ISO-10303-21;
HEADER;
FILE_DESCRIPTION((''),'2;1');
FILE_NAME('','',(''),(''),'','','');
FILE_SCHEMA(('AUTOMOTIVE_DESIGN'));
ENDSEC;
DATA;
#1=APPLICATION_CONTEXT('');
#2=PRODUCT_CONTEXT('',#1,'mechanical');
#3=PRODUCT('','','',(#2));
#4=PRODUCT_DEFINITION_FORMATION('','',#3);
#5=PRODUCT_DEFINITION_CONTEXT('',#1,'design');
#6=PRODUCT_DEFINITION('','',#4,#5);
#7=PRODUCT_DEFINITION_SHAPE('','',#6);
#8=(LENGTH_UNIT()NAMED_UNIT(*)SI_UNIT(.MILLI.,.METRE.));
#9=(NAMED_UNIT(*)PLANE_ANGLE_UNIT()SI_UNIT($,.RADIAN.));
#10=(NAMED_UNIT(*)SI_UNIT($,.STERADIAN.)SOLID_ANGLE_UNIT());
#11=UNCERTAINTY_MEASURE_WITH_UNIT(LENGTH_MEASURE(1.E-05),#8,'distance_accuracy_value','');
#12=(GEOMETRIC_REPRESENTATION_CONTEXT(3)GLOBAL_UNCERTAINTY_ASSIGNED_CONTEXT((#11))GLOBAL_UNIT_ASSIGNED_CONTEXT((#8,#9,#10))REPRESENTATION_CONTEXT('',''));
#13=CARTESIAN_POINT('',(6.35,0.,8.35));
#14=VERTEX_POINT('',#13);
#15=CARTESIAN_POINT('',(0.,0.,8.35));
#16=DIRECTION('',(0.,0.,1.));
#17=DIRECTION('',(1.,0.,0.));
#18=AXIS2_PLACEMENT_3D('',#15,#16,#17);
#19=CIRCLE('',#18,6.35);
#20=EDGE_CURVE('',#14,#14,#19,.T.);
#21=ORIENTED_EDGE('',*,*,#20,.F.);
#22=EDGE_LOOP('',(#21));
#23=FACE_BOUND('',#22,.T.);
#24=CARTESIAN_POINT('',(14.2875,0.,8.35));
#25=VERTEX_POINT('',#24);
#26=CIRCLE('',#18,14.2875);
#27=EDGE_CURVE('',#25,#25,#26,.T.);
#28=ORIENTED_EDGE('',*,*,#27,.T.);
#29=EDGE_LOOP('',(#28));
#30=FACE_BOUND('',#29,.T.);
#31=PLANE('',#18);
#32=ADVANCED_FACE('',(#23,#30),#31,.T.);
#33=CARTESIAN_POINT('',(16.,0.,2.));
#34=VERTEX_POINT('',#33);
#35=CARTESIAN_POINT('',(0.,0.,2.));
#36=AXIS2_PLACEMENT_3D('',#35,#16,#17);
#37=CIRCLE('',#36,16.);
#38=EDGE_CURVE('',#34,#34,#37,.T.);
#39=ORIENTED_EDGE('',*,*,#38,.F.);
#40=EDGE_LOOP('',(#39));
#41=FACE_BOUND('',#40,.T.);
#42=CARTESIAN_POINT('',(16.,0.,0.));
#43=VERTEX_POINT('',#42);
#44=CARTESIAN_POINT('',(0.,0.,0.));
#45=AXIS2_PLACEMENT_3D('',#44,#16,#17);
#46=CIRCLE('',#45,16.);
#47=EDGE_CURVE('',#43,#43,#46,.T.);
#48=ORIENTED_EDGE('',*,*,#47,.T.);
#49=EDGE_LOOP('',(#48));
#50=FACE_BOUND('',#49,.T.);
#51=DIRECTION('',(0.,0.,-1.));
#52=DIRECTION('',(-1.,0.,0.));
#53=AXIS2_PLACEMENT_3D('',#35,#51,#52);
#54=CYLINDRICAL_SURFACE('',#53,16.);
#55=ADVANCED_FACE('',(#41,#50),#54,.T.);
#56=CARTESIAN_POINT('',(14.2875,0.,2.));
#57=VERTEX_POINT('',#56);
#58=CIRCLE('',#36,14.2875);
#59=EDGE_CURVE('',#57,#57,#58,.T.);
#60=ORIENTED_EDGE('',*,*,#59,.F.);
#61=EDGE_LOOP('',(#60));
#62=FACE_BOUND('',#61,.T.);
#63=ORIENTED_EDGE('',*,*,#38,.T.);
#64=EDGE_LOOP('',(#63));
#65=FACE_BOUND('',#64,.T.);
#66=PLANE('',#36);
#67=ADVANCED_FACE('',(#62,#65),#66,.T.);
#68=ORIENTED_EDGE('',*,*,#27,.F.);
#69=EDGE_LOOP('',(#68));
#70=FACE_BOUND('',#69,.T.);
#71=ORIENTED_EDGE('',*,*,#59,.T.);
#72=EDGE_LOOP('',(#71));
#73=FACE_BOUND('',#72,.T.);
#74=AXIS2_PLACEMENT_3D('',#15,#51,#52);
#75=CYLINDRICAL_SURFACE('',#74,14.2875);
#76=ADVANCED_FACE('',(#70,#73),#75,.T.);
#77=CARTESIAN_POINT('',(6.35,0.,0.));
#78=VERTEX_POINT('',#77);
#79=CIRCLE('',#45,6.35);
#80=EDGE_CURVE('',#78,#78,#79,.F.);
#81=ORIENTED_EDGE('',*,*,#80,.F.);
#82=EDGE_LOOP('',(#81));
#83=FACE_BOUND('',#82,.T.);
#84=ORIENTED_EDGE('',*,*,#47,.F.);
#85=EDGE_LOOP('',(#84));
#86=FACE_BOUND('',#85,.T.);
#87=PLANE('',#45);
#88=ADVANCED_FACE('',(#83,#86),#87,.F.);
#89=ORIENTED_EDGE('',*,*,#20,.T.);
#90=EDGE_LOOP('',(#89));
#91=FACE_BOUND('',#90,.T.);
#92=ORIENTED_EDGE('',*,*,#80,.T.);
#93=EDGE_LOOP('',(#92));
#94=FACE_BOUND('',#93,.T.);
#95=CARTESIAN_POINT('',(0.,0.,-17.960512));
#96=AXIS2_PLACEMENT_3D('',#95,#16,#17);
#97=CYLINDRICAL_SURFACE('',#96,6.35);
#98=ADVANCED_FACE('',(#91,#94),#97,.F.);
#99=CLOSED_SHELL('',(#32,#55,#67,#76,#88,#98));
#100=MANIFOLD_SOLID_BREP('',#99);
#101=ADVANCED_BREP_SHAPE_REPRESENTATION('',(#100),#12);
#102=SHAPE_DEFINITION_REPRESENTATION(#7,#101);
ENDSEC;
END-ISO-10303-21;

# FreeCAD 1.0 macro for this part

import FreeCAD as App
import Part
import Sketcher
from FreeCAD import Vector
Q = App.Units.Quantity

doc = App.newDocument("Part")
body = doc.addObject("PartDesign::Body", "Body")

sketch1 = body.newObject("Sketcher::SketchObject", "Sketch")
sketch1.AttachmentSupport = (doc.getObject("XY_Plane"), [""])
sketch1.MapMode = "FlatFace"
sketch1.addGeometry(Part.Circle(Vector(0, 0, 0), Vector(0, 0, 1), 16), False)
sketch1.addConstraint(Sketcher.Constraint("Coincident", 0, 3, -1, 1))
sketch1.addConstraint(Sketcher.Constraint("Diameter", 0, Q("32 mm")))
pad1 = body.newObject("PartDesign::Pad", "Pad")
pad1.Profile = sketch1
pad1.Length = 2

sketch2 = body.newObject("Sketcher::SketchObject", "Sketch001")
sketch2.AttachmentSupport = (doc.getObject("XY_Plane"), [""])
sketch2.MapMode = "FlatFace"
sketch2.AttachmentOffset = App.Placement(Vector(0, 0, 2), App.Rotation())
sketch2.addGeometry(Part.Circle(Vector(0, 0, 0), Vector(0, 0, 1), 14), False)
sketch2.addConstraint(Sketcher.Constraint("Coincident", 0, 3, -1, 1))
sketch2.addConstraint(Sketcher.Constraint("Diameter", 0, Q("1.125 in")))
pad2 = body.newObject("PartDesign::Pad", "Pad001")
pad2.Profile = sketch2
pad2.Length = Q("0.25 in")

sketch3 = body.newObject("Sketcher::SketchObject", "Sketch002")
sketch3.AttachmentSupport = (doc.getObject("XY_Plane"), [""])
sketch3.MapMode = "FlatFace"
sketch3.AttachmentOffset = App.Placement(Vector(0, 0, 8.35), App.Rotation())
sketch3.addGeometry(Part.Circle(Vector(0, 0, 0), Vector(0, 0, 1), 6), False)
sketch3.addConstraint(Sketcher.Constraint("Coincident", 0, 3, -1, 1))
sketch3.addConstraint(Sketcher.Constraint("Diameter", 0, Q("0.5 in")))
pocket1 = body.newObject("PartDesign::Pocket", "Pocket")
pocket1.Profile = sketch3
pocket1.Length = 8.35

doc.recompute()
